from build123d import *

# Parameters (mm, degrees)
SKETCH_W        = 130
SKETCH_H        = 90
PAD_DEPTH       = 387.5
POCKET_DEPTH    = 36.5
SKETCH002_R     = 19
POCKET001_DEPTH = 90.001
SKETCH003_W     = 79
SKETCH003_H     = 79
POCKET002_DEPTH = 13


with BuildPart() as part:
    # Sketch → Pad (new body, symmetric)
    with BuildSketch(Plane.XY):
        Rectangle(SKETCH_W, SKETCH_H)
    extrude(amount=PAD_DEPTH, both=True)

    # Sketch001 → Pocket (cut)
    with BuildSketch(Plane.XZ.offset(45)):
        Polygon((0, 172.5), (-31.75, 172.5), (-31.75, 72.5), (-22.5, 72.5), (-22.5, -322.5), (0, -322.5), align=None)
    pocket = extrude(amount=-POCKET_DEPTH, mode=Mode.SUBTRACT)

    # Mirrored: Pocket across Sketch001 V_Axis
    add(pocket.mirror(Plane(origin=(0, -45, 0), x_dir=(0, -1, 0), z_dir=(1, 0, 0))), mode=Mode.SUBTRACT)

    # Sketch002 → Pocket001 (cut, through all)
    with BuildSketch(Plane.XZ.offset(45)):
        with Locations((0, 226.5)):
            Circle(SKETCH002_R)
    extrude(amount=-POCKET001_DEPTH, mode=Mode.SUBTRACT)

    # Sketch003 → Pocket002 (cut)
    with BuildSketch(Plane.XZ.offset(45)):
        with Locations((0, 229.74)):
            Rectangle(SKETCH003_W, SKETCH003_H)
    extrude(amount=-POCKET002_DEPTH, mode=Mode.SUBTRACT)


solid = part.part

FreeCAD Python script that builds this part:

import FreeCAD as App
import Part
import Sketcher

V = App.Vector


def add_polygon(sketch, points):
    """Adds a closed chain of lines whose ends are joined by coincident constraints."""
    first, n = sketch.GeometryCount, len(points)
    for a, b in zip(points, points[1:] + points[:1]):
        sketch.addGeometry(Part.LineSegment(App.Vector(*a, 0), App.Vector(*b, 0)), False)
    for i in range(n):
        sketch.addConstraint(Sketcher.Constraint("Coincident", first + i, 2, first + (i + 1) % n, 1))

doc = App.newDocument("Part")
body = doc.addObject("PartDesign::Body", "Body")

sketch1 = body.newObject("Sketcher::SketchObject", "Sketch")
sketch1.AttachmentSupport = (doc.getObject("XY_Plane"), [""])
sketch1.MapMode = "FlatFace"
add_polygon(sketch1, [(-65, 45), (-65, -45), (65, -45), (65, 45)])
sketch1.addConstraint(Sketcher.Constraint("Vertical", 0))
sketch1.addConstraint(Sketcher.Constraint("Horizontal", 1))
sketch1.addConstraint(Sketcher.Constraint("Vertical", 2))
sketch1.addConstraint(Sketcher.Constraint("Horizontal", 3))
sketch1.addConstraint(Sketcher.Constraint("Symmetric", 0, 2, 2, 2, -1, 1))
sketch1.addConstraint(Sketcher.Constraint("DistanceX", 1, 1, 1, 2, 130.0))
sketch1.addConstraint(Sketcher.Constraint("DistanceY", 0, 2, 0, 1, 90.0))
pad1 = body.newObject("PartDesign::Pad", "Pad")
pad1.Profile = sketch1
pad1.Length = 775
pad1.Midplane = True

sketch2 = body.newObject("Sketcher::SketchObject", "Sketch001")
sketch2.AttachmentSupport = (doc.getObject("XZ_Plane"), [""])
sketch2.MapMode = "FlatFace"
sketch2.AttachmentOffset = App.Placement(V(0, 0, 45), App.Rotation())
add_polygon(sketch2, [(0, 172), (-32, 172), (-32, 72), (-22, 72), (-22, -322), (0, -322)])
sketch2.addConstraint(Sketcher.Constraint("Horizontal", 0))
sketch2.addConstraint(Sketcher.Constraint("Vertical", 1))
sketch2.addConstraint(Sketcher.Constraint("Horizontal", 2))
sketch2.addConstraint(Sketcher.Constraint("Vertical", 3))
sketch2.addConstraint(Sketcher.Constraint("Horizontal", 4))
sketch2.addConstraint(Sketcher.Constraint("Vertical", 5))
sketch2.addConstraint(Sketcher.Constraint("PointOnObject", 4, 2, -2))
sketch2.addConstraint(Sketcher.Constraint("DistanceY", 1, 2, 1, 1, 100.0))
sketch2.addConstraint(Sketcher.Constraint("DistanceY", 3, 2, 3, 1, 395.0))
sketch2.addConstraint(Sketcher.Constraint("DistanceX", 4, 1, 4, 2, 22.5))
sketch2.addConstraint(Sketcher.Constraint("DistanceX", 0, 2, 0, 1, 31.75))
sketch2.addConstraint(Sketcher.Constraint("DistanceY", -1, 1, 0, 2, 172.5))
pocket1 = body.newObject("PartDesign::Pocket", "Pocket")
pocket1.Profile = sketch2
pocket1.Length = 36.5
doc.recompute()

mirrored = body.newObject("PartDesign::Mirrored", "Mirrored")
mirrored.Originals = [pocket1]
mirrored.MirrorPlane = (doc.getObject("YZ_Plane"), [""])
body.Tip = mirrored

sketch3 = body.newObject("Sketcher::SketchObject", "Sketch002")
sketch3.AttachmentSupport = (doc.getObject("XZ_Plane"), [""])
sketch3.MapMode = "FlatFace"
sketch3.AttachmentOffset = App.Placement(V(0, 0, 45), App.Rotation())
sketch3.addGeometry(Part.Circle(V(0, 226, 0), V(0, 0, 1), 19), False)
sketch3.addConstraint(Sketcher.Constraint("PointOnObject", 0, 3, -2))
sketch3.addConstraint(Sketcher.Constraint("Diameter", 0, 38.0))
sketch3.addConstraint(Sketcher.Constraint("DistanceY", -1, 1, 0, 3, 226.5))
pocket2 = body.newObject("PartDesign::Pocket", "Pocket001")
pocket2.Profile = sketch3
pocket2.Type = "ThroughAll"

sketch4 = body.newObject("Sketcher::SketchObject", "Sketch003")
sketch4.AttachmentSupport = (doc.getObject("XZ_Plane"), [""])
sketch4.MapMode = "FlatFace"
sketch4.AttachmentOffset = App.Placement(V(0, 0, 45), App.Rotation())
add_polygon(sketch4, [(-40, 269), (-40, 190), (40, 190), (40, 269)])
sketch4.addConstraint(Sketcher.Constraint("Vertical", 0))
sketch4.addConstraint(Sketcher.Constraint("Horizontal", 1))
sketch4.addConstraint(Sketcher.Constraint("Vertical", 2))
sketch4.addConstraint(Sketcher.Constraint("Horizontal", 3))
sketch4.addConstraint(Sketcher.Constraint("Equal", 3, 0))
sketch4.addConstraint(Sketcher.Constraint("DistanceX", 1, 1, 1, 2, 79.0))
sketch4.addConstraint(Sketcher.Constraint("DistanceX", 0, 2, -1, 1, 39.5))
sketch4.addConstraint(Sketcher.Constraint("DistanceY", -1, 1, 0, 2, 190.24))
pocket3 = body.newObject("PartDesign::Pocket", "Pocket002")
pocket3.Profile = sketch4
pocket3.Length = 13

doc.recompute()
